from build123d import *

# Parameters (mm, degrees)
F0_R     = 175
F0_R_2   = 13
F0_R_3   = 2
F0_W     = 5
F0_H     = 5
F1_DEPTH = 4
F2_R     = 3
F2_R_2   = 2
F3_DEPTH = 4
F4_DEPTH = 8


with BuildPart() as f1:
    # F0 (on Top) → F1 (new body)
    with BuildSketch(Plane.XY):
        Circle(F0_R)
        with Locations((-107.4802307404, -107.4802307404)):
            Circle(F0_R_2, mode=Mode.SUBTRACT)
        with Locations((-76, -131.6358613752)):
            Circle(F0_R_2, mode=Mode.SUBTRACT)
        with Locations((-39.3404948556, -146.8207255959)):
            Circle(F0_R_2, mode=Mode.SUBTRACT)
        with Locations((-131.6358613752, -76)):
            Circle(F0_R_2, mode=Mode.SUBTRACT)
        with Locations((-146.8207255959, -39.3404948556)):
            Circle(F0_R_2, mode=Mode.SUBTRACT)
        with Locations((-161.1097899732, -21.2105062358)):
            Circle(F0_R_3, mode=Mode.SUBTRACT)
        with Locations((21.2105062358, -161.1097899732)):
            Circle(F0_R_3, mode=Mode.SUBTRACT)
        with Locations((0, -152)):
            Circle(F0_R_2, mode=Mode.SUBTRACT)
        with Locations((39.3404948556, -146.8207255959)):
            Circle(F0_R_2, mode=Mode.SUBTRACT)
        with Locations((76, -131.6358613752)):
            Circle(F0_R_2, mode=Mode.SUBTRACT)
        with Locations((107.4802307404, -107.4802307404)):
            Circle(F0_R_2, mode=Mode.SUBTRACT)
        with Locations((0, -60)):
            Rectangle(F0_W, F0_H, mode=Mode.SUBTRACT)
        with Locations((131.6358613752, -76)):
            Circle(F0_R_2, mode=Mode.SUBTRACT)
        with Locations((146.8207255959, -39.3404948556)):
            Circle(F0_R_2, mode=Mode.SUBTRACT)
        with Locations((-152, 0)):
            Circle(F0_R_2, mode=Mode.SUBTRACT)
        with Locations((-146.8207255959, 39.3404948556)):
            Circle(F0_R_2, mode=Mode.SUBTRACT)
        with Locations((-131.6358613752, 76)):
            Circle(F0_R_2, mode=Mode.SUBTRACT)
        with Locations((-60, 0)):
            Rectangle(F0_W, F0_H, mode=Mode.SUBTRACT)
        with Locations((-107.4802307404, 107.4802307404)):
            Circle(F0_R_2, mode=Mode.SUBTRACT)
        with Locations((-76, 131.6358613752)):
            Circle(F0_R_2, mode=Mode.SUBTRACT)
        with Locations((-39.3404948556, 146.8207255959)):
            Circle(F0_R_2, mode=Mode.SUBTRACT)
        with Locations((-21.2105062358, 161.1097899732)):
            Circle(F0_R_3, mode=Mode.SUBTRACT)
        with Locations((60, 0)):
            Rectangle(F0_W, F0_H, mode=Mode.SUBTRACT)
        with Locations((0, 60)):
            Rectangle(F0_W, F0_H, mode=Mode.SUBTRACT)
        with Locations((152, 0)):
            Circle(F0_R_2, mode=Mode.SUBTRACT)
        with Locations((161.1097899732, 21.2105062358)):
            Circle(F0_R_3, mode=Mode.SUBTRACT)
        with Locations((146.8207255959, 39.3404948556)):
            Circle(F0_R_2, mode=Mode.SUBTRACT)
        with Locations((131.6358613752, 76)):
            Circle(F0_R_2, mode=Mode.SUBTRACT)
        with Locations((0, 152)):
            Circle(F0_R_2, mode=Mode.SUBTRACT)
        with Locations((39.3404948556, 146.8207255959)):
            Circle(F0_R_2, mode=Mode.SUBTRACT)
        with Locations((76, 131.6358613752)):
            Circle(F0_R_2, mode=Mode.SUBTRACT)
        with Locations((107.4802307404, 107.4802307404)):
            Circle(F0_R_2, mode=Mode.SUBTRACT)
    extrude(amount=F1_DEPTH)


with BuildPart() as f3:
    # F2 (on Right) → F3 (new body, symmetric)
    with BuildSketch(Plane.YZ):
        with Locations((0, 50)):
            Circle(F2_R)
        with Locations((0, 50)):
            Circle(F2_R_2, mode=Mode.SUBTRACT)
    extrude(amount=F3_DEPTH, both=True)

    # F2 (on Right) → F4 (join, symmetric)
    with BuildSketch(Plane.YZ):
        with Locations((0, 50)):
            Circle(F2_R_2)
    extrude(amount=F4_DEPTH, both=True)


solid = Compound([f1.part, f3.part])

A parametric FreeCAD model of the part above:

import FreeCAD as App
import Part
import Sketcher

V = App.Vector
Q = App.Units.Quantity

doc = App.newDocument("Part")
params = doc.addObject("Spreadsheet::Sheet", "Params")
for row, (alias, value) in enumerate([
    ("sketch1_diameter", "350 mm"),
    ("sketch1_diameter2", "26 mm"),
    ("sketch1_diameter3", "4 mm"),
    ("sketch1_width", "5 mm"),
    ("pad1_length", "4 mm"),
    ("sketch2_diameter", "6 mm"),
    ("sketch2_diameter2", "4 mm"),
    ("pad2_length", "8 mm"),
    ("sketch3_diameter", "4 mm"),
    ("pad3_length", "16 mm"),
], start=1):
    params.set(f"A{row}", alias)
    params.set(f"B{row}", "=" + value)
    params.setAlias(f"B{row}", alias)

body = doc.addObject("PartDesign::Body", "Body")

sketch1 = doc.addObject("Sketcher::SketchObject", "Sketch")
body.addObject(sketch1)
sketch1.AttachmentSupport = (doc.XY_Plane, [""])
sketch1.MapMode = "FlatFace"
sketch1.addGeometry([
    Part.Circle(V(0, 0, 0), V(0, 0, 1), 175),
    Part.Circle(V(-107.5, -107.5, 0), V(0, 0, 1), 13),
    Part.Circle(V(-76, -131.6, 0), V(0, 0, 1), 13),
    Part.Circle(V(-39.3, -146.8, 0), V(0, 0, 1), 13),
    Part.Circle(V(-131.6, -76, 0), V(0, 0, 1), 13),
    Part.Circle(V(-146.8, -39.3, 0), V(0, 0, 1), 13),
    Part.Circle(V(-161.1, -21.2, 0), V(0, 0, 1), 2),
    Part.Circle(V(0, -152, 0), V(0, 0, 1), 13),
    Part.Circle(V(21.2, -161.1, 0), V(0, 0, 1), 2),
    Part.Circle(V(39.3, -146.8, 0), V(0, 0, 1), 13),
    Part.Circle(V(76, -131.6, 0), V(0, 0, 1), 13),
    Part.Circle(V(107.5, -107.5, 0), V(0, 0, 1), 13),
    Part.LineSegment(V(2.5, -62.5, 0), V(-2.5, -62.5, 0)),
    Part.LineSegment(V(-2.5, -62.5, 0), V(-2.5, -57.5, 0)),
    Part.LineSegment(V(-2.5, -57.5, 0), V(2.5, -57.5, 0)),
    Part.LineSegment(V(2.5, -57.5, 0), V(2.5, -62.5, 0)),
    Part.Circle(V(131.6, -76, 0), V(0, 0, 1), 13),
    Part.Circle(V(146.8, -39.3, 0), V(0, 0, 1), 13),
    Part.Circle(V(-152, 0, 0), V(0, 0, 1), 13),
    Part.Circle(V(-146.8, 39.3, 0), V(0, 0, 1), 13),
    Part.Circle(V(-131.6, 76, 0), V(0, 0, 1), 13),
    Part.LineSegment(V(-57.5, -2.5, 0), V(-62.5, -2.5, 0)),
    Part.LineSegment(V(-62.5, -2.5, 0), V(-62.5, 2.5, 0)),
    Part.LineSegment(V(-62.5, 2.5, 0), V(-57.5, 2.5, 0)),
    Part.LineSegment(V(-57.5, 2.5, 0), V(-57.5, -2.5, 0)),
    Part.Circle(V(-107.5, 107.5, 0), V(0, 0, 1), 13),
    Part.Circle(V(-76, 131.6, 0), V(0, 0, 1), 13),
    Part.Circle(V(-39.3, 146.8, 0), V(0, 0, 1), 13),
    Part.Circle(V(-21.2, 161.1, 0), V(0, 0, 1), 2),
    Part.LineSegment(V(62.5, -2.5, 0), V(57.5, -2.5, 0)),
    Part.LineSegment(V(57.5, -2.5, 0), V(57.5, 2.5, 0)),
    Part.LineSegment(V(57.5, 2.5, 0), V(62.5, 2.5, 0)),
    Part.LineSegment(V(62.5, 2.5, 0), V(62.5, -2.5, 0)),
    Part.LineSegment(V(2.5, 57.5, 0), V(-2.5, 57.5, 0)),
    Part.LineSegment(V(-2.5, 57.5, 0), V(-2.5, 62.5, 0)),
    Part.LineSegment(V(-2.5, 62.5, 0), V(2.5, 62.5, 0)),
    Part.LineSegment(V(2.5, 62.5, 0), V(2.5, 57.5, 0)),
    Part.Circle(V(152, 0, 0), V(0, 0, 1), 13),
    Part.Circle(V(161.1, 21.2, 0), V(0, 0, 1), 2),
    Part.Circle(V(146.8, 39.3, 0), V(0, 0, 1), 13),
    Part.Circle(V(131.6, 76, 0), V(0, 0, 1), 13),
    Part.Circle(V(0, 152, 0), V(0, 0, 1), 13),
    Part.Circle(V(39.3, 146.8, 0), V(0, 0, 1), 13),
    Part.Circle(V(76, 131.6, 0), V(0, 0, 1), 13),
    Part.Circle(V(107.5, 107.5, 0), V(0, 0, 1), 13),
], False)
sketch1.addConstraint([
    Sketcher.Constraint("Coincident", 12, 2, 13, 1),
    Sketcher.Constraint("Coincident", 13, 2, 14, 1),
    Sketcher.Constraint("Coincident", 14, 2, 15, 1),
    Sketcher.Constraint("Coincident", 15, 2, 12, 1),
    Sketcher.Constraint("Coincident", 21, 2, 22, 1),
    Sketcher.Constraint("Coincident", 22, 2, 23, 1),
    Sketcher.Constraint("Coincident", 23, 2, 24, 1),
    Sketcher.Constraint("Coincident", 24, 2, 21, 1),
    Sketcher.Constraint("Coincident", 29, 2, 30, 1),
    Sketcher.Constraint("Coincident", 30, 2, 31, 1),
    Sketcher.Constraint("Coincident", 31, 2, 32, 1),
    Sketcher.Constraint("Coincident", 32, 2, 29, 1),
    Sketcher.Constraint("Coincident", 33, 2, 34, 1),
    Sketcher.Constraint("Coincident", 34, 2, 35, 1),
    Sketcher.Constraint("Coincident", 35, 2, 36, 1),
    Sketcher.Constraint("Coincident", 36, 2, 33, 1),
    Sketcher.Constraint("Horizontal", 12),
    Sketcher.Constraint("Vertical", 13),
    Sketcher.Constraint("Horizontal", 14),
    Sketcher.Constraint("Vertical", 15),
    Sketcher.Constraint("Horizontal", 21),
    Sketcher.Constraint("Vertical", 22),
    Sketcher.Constraint("Horizontal", 23),
    Sketcher.Constraint("Vertical", 24),
    Sketcher.Constraint("Horizontal", 29),
    Sketcher.Constraint("Vertical", 30),
    Sketcher.Constraint("Horizontal", 31),
    Sketcher.Constraint("Vertical", 32),
    Sketcher.Constraint("Horizontal", 33),
    Sketcher.Constraint("Vertical", 34),
    Sketcher.Constraint("Horizontal", 35),
    Sketcher.Constraint("Vertical", 36),
    Sketcher.Constraint("Coincident", 0, 3, -1, 1),
    Sketcher.Constraint("Equal", 1, 2),
    Sketcher.Constraint("Equal", 2, 3),
    Sketcher.Constraint("Equal", 3, 4),
    Sketcher.Constraint("Equal", 4, 5),
    Sketcher.Constraint("Equal", 5, 7),
    Sketcher.Constraint("Equal", 6, 8),
    Sketcher.Constraint("Equal", 7, 9),
    Sketcher.Constraint("Equal", 9, 10),
    Sketcher.Constraint("Equal", 10, 11),
    Sketcher.Constraint("Equal", 11, 16),
    Sketcher.Constraint("Equal", 16, 17),
    Sketcher.Constraint("Equal", 17, 18),
    Sketcher.Constraint("Equal", 18, 19),
    Sketcher.Constraint("Equal", 19, 20),
    Sketcher.Constraint("Equal", 20, 25),
    Sketcher.Constraint("Equal", 25, 26),
    Sketcher.Constraint("Equal", 26, 27),
    Sketcher.Constraint("Equal", 8, 28),
    Sketcher.Constraint("Equal", 27, 37),
    Sketcher.Constraint("Equal", 28, 38),
    Sketcher.Constraint("Equal", 37, 39),
    Sketcher.Constraint("Equal", 39, 40),
    Sketcher.Constraint("Equal", 40, 41),
    Sketcher.Constraint("Equal", 41, 42),
    Sketcher.Constraint("Equal", 42, 43),
    Sketcher.Constraint("Equal", 43, 44),
    Sketcher.Constraint("Symmetric", 17, 3, 19, 3, -1, 1),
    Sketcher.Constraint("Symmetric", 16, 3, 20, 3, -1, 1),
    Sketcher.Constraint("Symmetric", 11, 3, 25, 3, -1, 1),
    Sketcher.Constraint("Symmetric", 10, 3, 26, 3, -1, 1),
    Sketcher.Constraint("Symmetric", 9, 3, 27, 3, -1, 1),
    Sketcher.Constraint("Symmetric", 8, 3, 28, 3, -1, 1),
    Sketcher.Constraint("Symmetric", 18, 3, 37, 3, -1, 1),
    Sketcher.Constraint("Symmetric", 6, 3, 38, 3, -1, 1),
    Sketcher.Constraint("Symmetric", 5, 3, 39, 3, -1, 1),
    Sketcher.Constraint("Symmetric", 4, 3, 40, 3, -1, 1),
    Sketcher.Constraint("Symmetric", 7, 3, 41, 3, -1, 1),
    Sketcher.Constraint("Symmetric", 3, 3, 42, 3, -1, 1),
    Sketcher.Constraint("Symmetric", 2, 3, 43, 3, -1, 1),
    Sketcher.Constraint("Symmetric", 1, 3, 44, 3, -1, 1),
    Sketcher.Constraint("Symmetric", 23, 2, 29, 2, -1, 1),
    Sketcher.Constraint("Symmetric", 21, 2, 31, 2, -1, 1),
    Sketcher.Constraint("Symmetric", 14, 2, 33, 2, -1, 1),
    Sketcher.Constraint("Symmetric", 12, 2, 35, 2, -1, 1),
    Sketcher.Constraint("Symmetric", 3, 3, 9, 3, -2),
    Sketcher.Constraint("Symmetric", 2, 3, 10, 3, -2),
    Sketcher.Constraint("Symmetric", 1, 3, 11, 3, -2),
    Sketcher.Constraint("Symmetric", 4, 3, 16, 3, -2),
    Sketcher.Constraint("Symmetric", 5, 3, 17, 3, -2),
    Sketcher.Constraint("PointOnObject", 7, 3, -2),
    Sketcher.Constraint("PointOnObject", 18, 3, -1),
    Sketcher.Constraint("Horizontal", 24, 2, 29, 2),
    Sketcher.Constraint("Vertical", 13, 2, 33, 2),
    Sketcher.Constraint("Equal", 14, 21),
    Sketcher.Constraint("Equal", 35, 13),
    Sketcher.Constraint("Equal", 15, 22),
    Sketcher.Constraint("Diameter", 0, Q("350 mm")),
    Sketcher.Constraint("Diameter", 1, Q("26 mm")),
    Sketcher.Constraint("Diameter", 6, Q("4 mm")),
    Sketcher.Constraint("DistanceX", 12, 2, 12, 1, Q("5 mm")),
    Sketcher.Constraint("DistanceX", 2, 3, -1, 1, Q("76 mm")),
    Sketcher.Constraint("DistanceY", 4, 3, -1, 1, Q("76 mm")),
    Sketcher.Constraint("DistanceY", 7, 3, -1, 1, Q("152 mm")),
    Sketcher.Constraint("DistanceX", 18, 3, -1, 1, Q("152 mm")),
    Sketcher.Constraint("DistanceX", 21, 2, 13, 2, Q("60 mm")),
    Sketcher.Constraint("DistanceY", 13, 2, 21, 2, Q("55 mm")),
    Sketcher.Constraint("DistanceX", 3, 3, 8, 3, Q("60.551001 mm")),
    Sketcher.Constraint("DistanceY", 6, 3, 19, 3, Q("60.551001 mm")),
    Sketcher.Constraint("DistanceX", 1, 3, -1, 1, Q("107.480231 mm")),
    Sketcher.Constraint("DistanceY", 1, 3, -1, 1, Q("107.480231 mm")),
    Sketcher.Constraint("DistanceY", 2, 3, -1, 1, Q("131.635861 mm")),
    Sketcher.Constraint("DistanceX", 4, 3, -1, 1, Q("131.635861 mm")),
    Sketcher.Constraint("DistanceX", 6, 3, -1, 1, Q("161.10979 mm")),
    Sketcher.Constraint("DistanceY", 8, 3, -1, 1, Q("161.10979 mm")),
    Sketcher.Constraint("DistanceX", 5, 3, 3, 3, Q("107.480231 mm")),
    Sketcher.Constraint("DistanceY", 3, 3, 5, 3, Q("107.480231 mm")),
    Sketcher.Constraint("DistanceY", 5, 3, 6, 3, Q("18.129989 mm")),
    Sketcher.Constraint("DistanceX", 8, 3, 9, 3, Q("18.129989 mm")),
])
sketch1.setExpression("Constraints[89]", "Params.sketch1_diameter")
sketch1.setExpression("Constraints[90]", "Params.sketch1_diameter2")
sketch1.setExpression("Constraints[91]", "Params.sketch1_diameter3")
sketch1.setExpression("Constraints[92]", "Params.sketch1_width")
pad1 = doc.addObject("PartDesign::Pad", "Pad")
body.addObject(pad1)
pad1.Profile = sketch1
pad1.setExpression("Length", "Params.pad1_length")
body2 = doc.addObject("PartDesign::Body", "Body001")

sketch2 = doc.addObject("Sketcher::SketchObject", "Sketch001")
body2.addObject(sketch2)
sketch2.AttachmentSupport = (doc.getObject("YZ_Plane001"), [""])
sketch2.MapMode = "FlatFace"
sketch2.addGeometry([
    Part.Circle(V(0, 50, 0), V(0, 0, 1), 3),
    Part.Circle(V(0, 50, 0), V(0, 0, 1), 2),
], False)
sketch2.addConstraint([
    Sketcher.Constraint("Coincident", 1, 3, 0, 3),
    Sketcher.Constraint("PointOnObject", 0, 3, -2),
    Sketcher.Constraint("Diameter", 0, Q("6 mm")),
    Sketcher.Constraint("Diameter", 1, Q("4 mm")),
    Sketcher.Constraint("DistanceY", -1, 1, 0, 3, Q("50 mm")),
])
sketch2.setExpression("Constraints[2]", "Params.sketch2_diameter")
sketch2.setExpression("Constraints[3]", "Params.sketch2_diameter2")
pad2 = doc.addObject("PartDesign::Pad", "Pad001")
body2.addObject(pad2)
pad2.Profile = sketch2
pad2.setExpression("Length", "Params.pad2_length")
pad2.Midplane = True

sketch3 = doc.addObject("Sketcher::SketchObject", "Sketch002")
body2.addObject(sketch3)
sketch3.AttachmentSupport = (doc.getObject("YZ_Plane001"), [""])
sketch3.MapMode = "FlatFace"
sketch3.addGeometry(Part.Circle(V(0, 50, 0), V(0, 0, 1), 2), False)
sketch3.addConstraint([
    Sketcher.Constraint("PointOnObject", 0, 3, -2),
    Sketcher.Constraint("Diameter", 0, Q("4 mm")),
    Sketcher.Constraint("DistanceY", -1, 1, 0, 3, Q("50 mm")),
])
sketch3.setExpression("Constraints[1]", "Params.sketch3_diameter")
pad3 = doc.addObject("PartDesign::Pad", "Pad002")
body2.addObject(pad3)
pad3.Profile = sketch3
pad3.setExpression("Length", "Params.pad3_length")
pad3.Midplane = True

doc.recompute()
